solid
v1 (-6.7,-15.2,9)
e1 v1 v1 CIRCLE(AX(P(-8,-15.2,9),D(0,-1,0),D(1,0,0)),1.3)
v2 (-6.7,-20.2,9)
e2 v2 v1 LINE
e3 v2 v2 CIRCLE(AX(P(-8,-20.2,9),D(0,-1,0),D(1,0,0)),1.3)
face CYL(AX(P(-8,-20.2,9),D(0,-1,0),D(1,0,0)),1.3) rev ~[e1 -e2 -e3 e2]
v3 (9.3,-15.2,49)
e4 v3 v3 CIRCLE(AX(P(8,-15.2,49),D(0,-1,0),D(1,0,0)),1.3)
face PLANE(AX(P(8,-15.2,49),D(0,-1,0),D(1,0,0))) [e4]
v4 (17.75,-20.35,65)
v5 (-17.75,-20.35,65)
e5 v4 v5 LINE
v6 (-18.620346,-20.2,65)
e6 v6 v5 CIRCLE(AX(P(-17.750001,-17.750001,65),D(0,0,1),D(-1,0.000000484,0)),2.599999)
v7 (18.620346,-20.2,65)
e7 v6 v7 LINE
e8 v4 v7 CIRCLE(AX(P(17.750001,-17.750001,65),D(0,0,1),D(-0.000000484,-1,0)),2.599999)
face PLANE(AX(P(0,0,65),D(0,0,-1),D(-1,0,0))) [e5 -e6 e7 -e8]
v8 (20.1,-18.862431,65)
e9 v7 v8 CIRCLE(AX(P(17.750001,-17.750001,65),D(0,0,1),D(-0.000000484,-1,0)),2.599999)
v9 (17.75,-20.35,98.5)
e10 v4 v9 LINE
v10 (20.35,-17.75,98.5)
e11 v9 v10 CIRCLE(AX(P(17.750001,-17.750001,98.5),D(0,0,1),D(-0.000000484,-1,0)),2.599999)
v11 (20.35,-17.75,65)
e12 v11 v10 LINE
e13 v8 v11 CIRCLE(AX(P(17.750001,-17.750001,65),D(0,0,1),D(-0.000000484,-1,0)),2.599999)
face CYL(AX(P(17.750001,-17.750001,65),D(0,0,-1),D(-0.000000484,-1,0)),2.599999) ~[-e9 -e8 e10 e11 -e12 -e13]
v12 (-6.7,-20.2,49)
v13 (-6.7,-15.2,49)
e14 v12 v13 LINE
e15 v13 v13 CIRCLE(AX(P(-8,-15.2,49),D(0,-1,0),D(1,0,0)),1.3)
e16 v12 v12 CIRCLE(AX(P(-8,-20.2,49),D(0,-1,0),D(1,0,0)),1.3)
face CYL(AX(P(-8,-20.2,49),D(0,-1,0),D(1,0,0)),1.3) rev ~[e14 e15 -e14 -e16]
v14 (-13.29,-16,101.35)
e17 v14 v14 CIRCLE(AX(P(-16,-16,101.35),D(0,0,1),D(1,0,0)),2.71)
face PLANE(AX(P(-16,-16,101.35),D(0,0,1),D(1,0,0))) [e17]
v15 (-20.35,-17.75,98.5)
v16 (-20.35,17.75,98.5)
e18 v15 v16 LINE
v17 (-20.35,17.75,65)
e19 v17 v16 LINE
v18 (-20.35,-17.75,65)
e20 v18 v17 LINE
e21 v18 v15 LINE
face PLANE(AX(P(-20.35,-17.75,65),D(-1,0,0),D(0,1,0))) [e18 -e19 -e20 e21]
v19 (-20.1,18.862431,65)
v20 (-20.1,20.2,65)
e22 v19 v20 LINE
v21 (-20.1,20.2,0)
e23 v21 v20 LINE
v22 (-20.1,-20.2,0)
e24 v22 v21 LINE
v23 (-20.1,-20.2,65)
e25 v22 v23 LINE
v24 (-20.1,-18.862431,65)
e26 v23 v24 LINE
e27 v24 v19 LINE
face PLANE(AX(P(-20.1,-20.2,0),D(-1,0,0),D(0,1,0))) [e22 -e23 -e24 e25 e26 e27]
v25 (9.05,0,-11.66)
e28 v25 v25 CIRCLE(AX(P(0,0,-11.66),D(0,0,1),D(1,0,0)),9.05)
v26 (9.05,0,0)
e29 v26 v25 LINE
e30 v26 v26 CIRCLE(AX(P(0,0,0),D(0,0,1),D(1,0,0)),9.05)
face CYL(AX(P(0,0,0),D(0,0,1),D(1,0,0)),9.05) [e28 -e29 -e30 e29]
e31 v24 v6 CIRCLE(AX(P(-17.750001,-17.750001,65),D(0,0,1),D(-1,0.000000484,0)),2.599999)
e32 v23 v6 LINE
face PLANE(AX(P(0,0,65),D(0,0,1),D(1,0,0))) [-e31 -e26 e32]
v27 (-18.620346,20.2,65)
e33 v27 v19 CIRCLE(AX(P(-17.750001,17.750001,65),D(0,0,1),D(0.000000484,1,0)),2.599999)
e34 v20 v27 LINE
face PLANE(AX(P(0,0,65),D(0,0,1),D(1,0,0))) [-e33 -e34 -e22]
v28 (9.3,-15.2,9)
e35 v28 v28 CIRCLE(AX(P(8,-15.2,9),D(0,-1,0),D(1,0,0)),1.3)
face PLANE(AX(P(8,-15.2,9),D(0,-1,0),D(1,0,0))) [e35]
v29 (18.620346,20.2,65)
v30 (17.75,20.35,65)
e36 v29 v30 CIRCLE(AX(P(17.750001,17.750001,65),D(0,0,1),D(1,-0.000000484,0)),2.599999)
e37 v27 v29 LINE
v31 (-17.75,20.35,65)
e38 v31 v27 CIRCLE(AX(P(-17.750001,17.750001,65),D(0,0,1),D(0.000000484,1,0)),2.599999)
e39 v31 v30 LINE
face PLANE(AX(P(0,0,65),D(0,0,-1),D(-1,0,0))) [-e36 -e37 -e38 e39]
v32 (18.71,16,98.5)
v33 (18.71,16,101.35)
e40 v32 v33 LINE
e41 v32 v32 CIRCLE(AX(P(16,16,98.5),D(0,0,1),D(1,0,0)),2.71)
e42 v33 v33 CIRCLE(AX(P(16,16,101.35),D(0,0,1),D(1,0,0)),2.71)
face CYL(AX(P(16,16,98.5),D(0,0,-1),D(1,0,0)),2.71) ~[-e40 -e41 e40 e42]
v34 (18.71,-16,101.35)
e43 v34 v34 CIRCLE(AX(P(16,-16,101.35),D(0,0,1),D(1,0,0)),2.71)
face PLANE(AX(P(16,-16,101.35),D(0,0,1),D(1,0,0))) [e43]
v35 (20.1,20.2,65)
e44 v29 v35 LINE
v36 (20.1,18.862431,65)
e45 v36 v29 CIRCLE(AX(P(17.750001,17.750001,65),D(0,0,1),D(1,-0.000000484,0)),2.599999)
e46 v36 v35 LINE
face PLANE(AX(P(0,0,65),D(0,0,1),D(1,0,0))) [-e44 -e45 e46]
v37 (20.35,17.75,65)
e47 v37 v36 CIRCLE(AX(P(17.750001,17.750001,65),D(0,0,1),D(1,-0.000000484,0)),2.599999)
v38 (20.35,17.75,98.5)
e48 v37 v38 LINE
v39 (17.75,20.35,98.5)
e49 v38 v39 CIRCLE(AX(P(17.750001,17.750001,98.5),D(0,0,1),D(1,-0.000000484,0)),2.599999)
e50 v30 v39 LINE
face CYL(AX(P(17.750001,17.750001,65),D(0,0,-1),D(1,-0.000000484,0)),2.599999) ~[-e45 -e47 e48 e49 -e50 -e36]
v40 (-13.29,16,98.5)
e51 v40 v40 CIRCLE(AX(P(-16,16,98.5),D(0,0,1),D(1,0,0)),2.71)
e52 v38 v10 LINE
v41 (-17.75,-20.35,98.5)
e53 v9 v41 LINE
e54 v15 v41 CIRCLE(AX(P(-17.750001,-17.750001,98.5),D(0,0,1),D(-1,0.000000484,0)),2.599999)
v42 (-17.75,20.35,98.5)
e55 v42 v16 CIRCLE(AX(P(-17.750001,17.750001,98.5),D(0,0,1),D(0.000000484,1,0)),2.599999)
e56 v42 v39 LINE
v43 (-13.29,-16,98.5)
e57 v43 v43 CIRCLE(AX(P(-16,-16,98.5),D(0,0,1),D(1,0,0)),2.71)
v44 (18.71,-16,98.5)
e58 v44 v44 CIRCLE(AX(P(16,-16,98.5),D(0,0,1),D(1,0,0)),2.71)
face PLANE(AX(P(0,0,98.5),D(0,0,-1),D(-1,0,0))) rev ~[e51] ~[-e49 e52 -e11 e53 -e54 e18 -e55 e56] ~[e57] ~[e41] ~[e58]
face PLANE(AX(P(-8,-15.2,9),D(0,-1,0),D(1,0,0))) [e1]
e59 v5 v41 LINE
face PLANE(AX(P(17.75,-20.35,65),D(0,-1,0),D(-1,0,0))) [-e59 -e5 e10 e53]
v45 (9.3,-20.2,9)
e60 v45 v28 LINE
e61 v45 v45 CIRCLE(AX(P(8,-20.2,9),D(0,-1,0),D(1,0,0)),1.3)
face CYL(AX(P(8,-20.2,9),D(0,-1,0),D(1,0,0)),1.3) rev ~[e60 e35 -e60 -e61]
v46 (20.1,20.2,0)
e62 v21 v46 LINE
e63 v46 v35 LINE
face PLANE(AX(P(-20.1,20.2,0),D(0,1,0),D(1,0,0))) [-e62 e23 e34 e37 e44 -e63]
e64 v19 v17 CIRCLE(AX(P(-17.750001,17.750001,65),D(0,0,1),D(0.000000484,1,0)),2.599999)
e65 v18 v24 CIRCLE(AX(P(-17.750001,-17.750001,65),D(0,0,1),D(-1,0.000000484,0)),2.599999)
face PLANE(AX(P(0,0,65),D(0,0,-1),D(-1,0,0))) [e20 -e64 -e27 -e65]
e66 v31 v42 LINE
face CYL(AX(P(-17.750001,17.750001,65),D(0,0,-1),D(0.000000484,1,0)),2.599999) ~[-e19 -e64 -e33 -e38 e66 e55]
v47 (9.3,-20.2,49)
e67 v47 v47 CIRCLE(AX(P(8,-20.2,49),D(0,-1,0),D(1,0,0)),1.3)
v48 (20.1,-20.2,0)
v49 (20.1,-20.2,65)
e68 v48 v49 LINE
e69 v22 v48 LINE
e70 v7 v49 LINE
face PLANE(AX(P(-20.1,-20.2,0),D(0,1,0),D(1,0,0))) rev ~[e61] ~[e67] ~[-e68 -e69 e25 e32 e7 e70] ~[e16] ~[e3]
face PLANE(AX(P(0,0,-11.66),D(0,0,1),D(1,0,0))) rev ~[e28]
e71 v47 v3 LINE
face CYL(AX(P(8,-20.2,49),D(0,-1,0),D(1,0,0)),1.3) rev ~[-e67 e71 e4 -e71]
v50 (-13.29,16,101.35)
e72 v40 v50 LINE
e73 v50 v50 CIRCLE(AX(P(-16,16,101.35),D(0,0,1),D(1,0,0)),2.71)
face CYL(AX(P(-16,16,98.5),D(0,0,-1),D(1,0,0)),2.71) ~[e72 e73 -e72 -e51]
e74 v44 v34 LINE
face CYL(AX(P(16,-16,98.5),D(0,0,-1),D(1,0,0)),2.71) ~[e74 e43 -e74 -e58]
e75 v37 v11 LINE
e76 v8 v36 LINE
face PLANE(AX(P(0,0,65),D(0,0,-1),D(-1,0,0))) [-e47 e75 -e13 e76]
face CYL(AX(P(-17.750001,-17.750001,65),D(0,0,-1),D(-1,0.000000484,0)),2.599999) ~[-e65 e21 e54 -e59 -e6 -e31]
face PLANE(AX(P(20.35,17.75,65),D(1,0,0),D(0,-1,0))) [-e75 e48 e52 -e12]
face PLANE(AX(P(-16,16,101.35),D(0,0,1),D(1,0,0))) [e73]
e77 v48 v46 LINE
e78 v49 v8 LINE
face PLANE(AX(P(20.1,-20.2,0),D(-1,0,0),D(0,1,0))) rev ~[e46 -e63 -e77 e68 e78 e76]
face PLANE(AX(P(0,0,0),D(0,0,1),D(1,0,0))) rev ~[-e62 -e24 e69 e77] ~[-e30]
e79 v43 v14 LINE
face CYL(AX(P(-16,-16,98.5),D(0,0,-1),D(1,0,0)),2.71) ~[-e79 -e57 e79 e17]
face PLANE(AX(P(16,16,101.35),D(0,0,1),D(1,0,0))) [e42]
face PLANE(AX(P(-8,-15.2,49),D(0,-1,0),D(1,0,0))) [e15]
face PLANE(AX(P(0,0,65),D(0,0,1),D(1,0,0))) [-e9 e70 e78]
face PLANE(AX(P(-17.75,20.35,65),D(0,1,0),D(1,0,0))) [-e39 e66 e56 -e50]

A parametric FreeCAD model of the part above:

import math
import FreeCAD as App
import Part
import Sketcher
from FreeCAD import Vector
Q = App.Units.Quantity

doc = App.newDocument("Part")
body = doc.addObject("PartDesign::Body", "Body")

sketch1 = body.newObject("Sketcher::SketchObject", "Sketch")
sketch1.AttachmentSupport = (doc.getObject("XY_Plane"), [""])
sketch1.MapMode = "FlatFace"
sketch1.addGeometry([
    Part.LineSegment(Vector(-20, 20, 0), Vector(-20, -20, 0)),
    Part.LineSegment(Vector(-20, -20, 0), Vector(20, -20, 0)),
    Part.LineSegment(Vector(20, -20, 0), Vector(20, 20, 0)),
    Part.LineSegment(Vector(20, 20, 0), Vector(-20, 20, 0)),
], False)
sketch1.addConstraint([
    Sketcher.Constraint("Coincident", 0, 2, 1, 1),
    Sketcher.Constraint("Coincident", 1, 2, 2, 1),
    Sketcher.Constraint("Coincident", 2, 2, 3, 1),
    Sketcher.Constraint("Coincident", 3, 2, 0, 1),
    Sketcher.Constraint("Vertical", 0),
    Sketcher.Constraint("Horizontal", 1),
    Sketcher.Constraint("Vertical", 2),
    Sketcher.Constraint("Horizontal", 3),
    Sketcher.Constraint("Symmetric", 0, 2, 2, 2, -1, 1),
    Sketcher.Constraint("DistanceX", 1, 1, 1, 2, Q("40.2 mm")),
    Sketcher.Constraint("DistanceY", 0, 2, 0, 1, Q("40.4 mm")),
])
pad1 = body.newObject("PartDesign::Pad", "Pad")
pad1.Profile = sketch1
pad1.Length = 65

sketch2 = body.newObject("Sketcher::SketchObject", "Sketch001")
sketch2.AttachmentSupport = (doc.getObject("XZ_Plane"), [""])
sketch2.MapMode = "FlatFace"
sketch2.AttachmentOffset = App.Placement(Vector(0, 0, 20.2), App.Rotation())
sketch2.addGeometry([
    Part.Circle(Vector(8, 9, 0), Vector(0, 0, 1), 1.3),
    Part.Circle(Vector(-8, 9, 0), Vector(0, 0, 1), 1.3),
    Part.Circle(Vector(-8, 49, 0), Vector(0, 0, 1), 1.3),
    Part.Circle(Vector(8, 49, 0), Vector(0, 0, 1), 1.3),
], False)
sketch2.addConstraint([
    Sketcher.Constraint("Equal", 0, 1),
    Sketcher.Constraint("Equal", 1, 2),
    Sketcher.Constraint("Equal", 2, 3),
    Sketcher.Constraint("Symmetric", 0, 3, 1, 3, -2),
    Sketcher.Constraint("Symmetric", 2, 3, 3, 3, -2),
    Sketcher.Constraint("Vertical", 1, 3, 2, 3),
    Sketcher.Constraint("Diameter", 0, Q("2.6 mm")),
    Sketcher.Constraint("DistanceX", -1, 1, 0, 3, Q("8 mm")),
    Sketcher.Constraint("DistanceY", -1, 1, 0, 3, Q("9 mm")),
    Sketcher.Constraint("DistanceY", -1, 1, 2, 3, Q("49 mm")),
])
pocket1 = body.newObject("PartDesign::Pocket", "Pocket")
pocket1.Profile = sketch2
pocket1.Length = 5

sketch3 = body.newObject("Sketcher::SketchObject", "Sketch002")
sketch3.AttachmentSupport = (doc.getObject("XY_Plane"), [""])
sketch3.MapMode = "FlatFace"
sketch3.AttachmentOffset = App.Placement(Vector(0, 0, 65), App.Rotation())
sketch3.addGeometry([
    Part.LineSegment(Vector(17.8, 20.4, 0), Vector(-17.8, 20.4, 0)),
    Part.ArcOfCircle(Part.Circle(Vector(-17.8, 17.8, 0), Vector(0, 0, 1), 2.6), math.radians(90), math.radians(180)),
    Part.LineSegment(Vector(-20.4, 17.8, 0), Vector(-20.4, -17.8, 0)),
    Part.ArcOfCircle(Part.Circle(Vector(-17.8, -17.8, 0), Vector(0, 0, 1), 2.6), math.radians(180), math.radians(270)),
    Part.LineSegment(Vector(-17.8, -20.4, 0), Vector(17.8, -20.4, 0)),
    Part.ArcOfCircle(Part.Circle(Vector(17.8, -17.8, 0), Vector(0, 0, 1), 2.6), math.radians(-90), math.radians(0)),
    Part.LineSegment(Vector(20.4, -17.8, 0), Vector(20.4, 17.8, 0)),
    Part.ArcOfCircle(Part.Circle(Vector(17.8, 17.8, 0), Vector(0, 0, 1), 2.6), math.radians(0), math.radians(90)),
], False)
sketch3.addConstraint([
    Sketcher.Constraint("Tangent", 0, 2, 1, 1),
    Sketcher.Constraint("Tangent", 1, 2, 2, 1),
    Sketcher.Constraint("Tangent", 2, 2, 3, 1),
    Sketcher.Constraint("Tangent", 3, 2, 4, 1),
    Sketcher.Constraint("Tangent", 4, 2, 5, 1),
    Sketcher.Constraint("Tangent", 5, 2, 6, 1),
    Sketcher.Constraint("Tangent", 6, 2, 7, 1),
    Sketcher.Constraint("Tangent", 7, 2, 0, 1),
    Sketcher.Constraint("Horizontal", 0),
    Sketcher.Constraint("Vertical", 2),
    Sketcher.Constraint("Horizontal", 4),
    Sketcher.Constraint("Vertical", 6),
    Sketcher.Constraint("Equal", 1, 3),
    Sketcher.Constraint("Equal", 3, 5),
    Sketcher.Constraint("Equal", 5, 7),
    Sketcher.Constraint("Symmetric", 1, 3, 5, 3, -1, 1),
    Sketcher.Constraint("Equal", 4, 2),
    Sketcher.Constraint("Radius", 1, Q("2.599999 mm")),
    Sketcher.Constraint("DistanceX", 0, 2, 0, 1, Q("35.5 mm")),
])
pad2 = body.newObject("PartDesign::Pad", "Pad001")
pad2.Profile = sketch3
pad2.Length = 33.5

sketch4 = body.newObject("Sketcher::SketchObject", "Sketch003")
sketch4.AttachmentSupport = (doc.getObject("XY_Plane"), [""])
sketch4.MapMode = "FlatFace"
sketch4.addGeometry(Part.Circle(Vector(0, 0, 0), Vector(0, 0, 1), 9), False)
sketch4.addConstraint([
    Sketcher.Constraint("Coincident", 0, 3, -1, 1),
    Sketcher.Constraint("Diameter", 0, Q("18.1 mm")),
])
pad3 = body.newObject("PartDesign::Pad", "Pad002")
pad3.Profile = sketch4
pad3.Length = 11.66
pad3.Reversed = True

sketch5 = body.newObject("Sketcher::SketchObject", "Sketch004")
sketch5.AttachmentSupport = (doc.getObject("XY_Plane"), [""])
sketch5.MapMode = "FlatFace"
sketch5.AttachmentOffset = App.Placement(Vector(0, 0, 98.5), App.Rotation())
sketch5.addGeometry([
    Part.Circle(Vector(-16, 16, 0), Vector(0, 0, 1), 2.7),
    Part.Circle(Vector(16, 16, 0), Vector(0, 0, 1), 2.7),
    Part.Circle(Vector(16, -16, 0), Vector(0, 0, 1), 2.7),
    Part.Circle(Vector(-16, -16, 0), Vector(0, 0, 1), 2.7),
], False)
sketch5.addConstraint([
    Sketcher.Constraint("Equal", 0, 1),
    Sketcher.Constraint("Equal", 1, 2),
    Sketcher.Constraint("Equal", 2, 3),
    Sketcher.Constraint("Symmetric", 0, 3, 2, 3, -1, 1),
    Sketcher.Constraint("Symmetric", 1, 3, 3, 3, -1, 1),
    Sketcher.Constraint("Symmetric", 0, 3, 1, 3, -2),
    Sketcher.Constraint("Diameter", 0, Q("5.42 mm")),
    Sketcher.Constraint("DistanceX", 0, 3, -1, 1, Q("16 mm")),
    Sketcher.Constraint("DistanceY", -1, 1, 0, 3, Q("16 mm")),
])
pad4 = body.newObject("PartDesign::Pad", "Pad003")
pad4.Profile = sketch5
pad4.Length = 2.85

doc.recompute()
